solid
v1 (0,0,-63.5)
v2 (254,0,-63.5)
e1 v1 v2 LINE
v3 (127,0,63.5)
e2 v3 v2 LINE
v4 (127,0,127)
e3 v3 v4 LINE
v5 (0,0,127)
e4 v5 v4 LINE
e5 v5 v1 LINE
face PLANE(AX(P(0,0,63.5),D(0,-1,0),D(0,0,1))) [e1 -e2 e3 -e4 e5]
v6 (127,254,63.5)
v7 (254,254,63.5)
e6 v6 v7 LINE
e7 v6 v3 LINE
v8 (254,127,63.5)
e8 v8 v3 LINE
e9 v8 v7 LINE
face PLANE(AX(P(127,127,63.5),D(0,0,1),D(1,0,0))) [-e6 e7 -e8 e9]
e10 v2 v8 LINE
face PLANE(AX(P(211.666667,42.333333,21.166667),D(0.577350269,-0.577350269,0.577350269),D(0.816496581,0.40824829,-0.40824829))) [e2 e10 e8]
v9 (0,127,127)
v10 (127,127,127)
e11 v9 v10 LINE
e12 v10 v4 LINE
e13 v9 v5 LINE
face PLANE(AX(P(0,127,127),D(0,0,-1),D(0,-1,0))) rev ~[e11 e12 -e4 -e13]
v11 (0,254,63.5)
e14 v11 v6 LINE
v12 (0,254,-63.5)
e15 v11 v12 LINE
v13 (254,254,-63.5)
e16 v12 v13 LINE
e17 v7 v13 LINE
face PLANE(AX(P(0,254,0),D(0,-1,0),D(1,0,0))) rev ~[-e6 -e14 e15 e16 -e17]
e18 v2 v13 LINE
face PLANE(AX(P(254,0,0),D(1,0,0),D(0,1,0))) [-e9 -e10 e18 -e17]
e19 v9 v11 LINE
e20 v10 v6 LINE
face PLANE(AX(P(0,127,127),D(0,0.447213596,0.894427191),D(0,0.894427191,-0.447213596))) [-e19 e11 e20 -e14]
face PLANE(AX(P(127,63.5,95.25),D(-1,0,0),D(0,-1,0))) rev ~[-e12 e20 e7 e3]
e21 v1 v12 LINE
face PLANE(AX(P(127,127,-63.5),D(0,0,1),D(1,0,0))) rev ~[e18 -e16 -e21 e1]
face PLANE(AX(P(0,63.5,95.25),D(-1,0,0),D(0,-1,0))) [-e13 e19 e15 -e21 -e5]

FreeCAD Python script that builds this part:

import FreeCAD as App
import Part
import Sketcher
from FreeCAD import Vector
Q = App.Units.Quantity


def add_polygon(sketch, points):
    """Adds a closed chain of lines whose ends are joined by coincident constraints."""
    first, n = sketch.GeometryCount, len(points)
    for a, b in zip(points, points[1:] + points[:1]):
        sketch.addGeometry(Part.LineSegment(App.Vector(*a, 0), App.Vector(*b, 0)), False)
    for i in range(n):
        sketch.addConstraint(Sketcher.Constraint("Coincident", first + i, 2, first + (i + 1) % n, 1))

doc = App.newDocument("Part")
body = doc.addObject("PartDesign::Body", "Body")

# Sketch on XY plane
sketch1 = body.newObject("Sketcher::SketchObject", "Sketch")
sketch1.AttachmentSupport = (doc.getObject("XY_Plane"), [""])
sketch1.MapMode = "FlatFace"
add_polygon(sketch1, [(0, 254), (0, 0), (254, 0), (254, 254)])  # lines 0-3
sketch1.addConstraint([
    Sketcher.Constraint("Vertical", 0),
    Sketcher.Constraint("Horizontal", 1),
    Sketcher.Constraint("Vertical", 2),
    Sketcher.Constraint("Horizontal", 3),
    Sketcher.Constraint("Coincident", 0, 2, -1, 1),
    Sketcher.Constraint("Equal", 3, 0),
    Sketcher.Constraint("DistanceX", 1, 1, 1, 2, Q("10 in")),
])
pad1 = body.newObject("PartDesign::Pad", "Pad")
pad1.Profile = sketch1
pad1.Length = Q("5 in")
pad1.Midplane = True

# Sketch on YZ plane
sketch2 = body.newObject("Sketcher::SketchObject", "Sketch001")
sketch2.AttachmentSupport = (doc.getObject("YZ_Plane"), [""])
sketch2.MapMode = "FlatFace"
add_polygon(sketch2, [(0, 63.5), (0, 127), (127, 127), (254, 63.5)])  # lines 0-3
sketch2.addConstraint([
    Sketcher.Constraint("Vertical", 0),
    Sketcher.Constraint("Horizontal", 1),
    Sketcher.Constraint("Horizontal", 3),
    Sketcher.Constraint("PointOnObject", 0, 2, -2),
    Sketcher.Constraint("DistanceX", 1, 1, 1, 2, Q("5 in")),
    Sketcher.Constraint("DistanceX", 3, 2, 3, 1, Q("10 in")),
    Sketcher.Constraint("DistanceY", 0, 1, 0, 2, Q("2.5 in")),
    Sketcher.Constraint("DistanceY", -1, 1, 0, 2, Q("5 in")),
])
pad2 = body.newObject("PartDesign::Pad", "Pad001")
pad2.Profile = sketch2
pad2.Length = Q("5 in")

# Sketch on an angled plane
sketch3 = body.newObject("Sketcher::SketchObject", "Sketch002")
sketch3.Placement = App.Placement(Vector(63.5, -63.5, 63.5), App.Rotation(Vector(0.816496581, 0.40824829, -0.40824829), Vector(0, 0.707106781, 0.707106781), Vector(0.577350269, -0.577350269, 0.577350269), "ZXY"))
add_polygon(sketch3, [(233.313898, 134.703842), (77.771299, 44.901281), (233.313898, -44.901281)])  # lines 0-2
sketch3.addConstraint([
    Sketcher.Constraint("Vertical", 2),
    Sketcher.Constraint("Equal", 0, 1),
    Sketcher.Constraint("Angle", 0, Q("-150 deg")),
    Sketcher.Constraint("DistanceX", -1, 1, 0, 2, 77.771299),
    Sketcher.Constraint("DistanceX", 0, 2, 1, 2, 155.542599),
    Sketcher.Constraint("DistanceY", -1, 1, 0, 2, 44.901281),
])
pocket1 = body.newObject("PartDesign::Pocket", "Pocket")
pocket1.Profile = sketch3
pocket1.Type = "ThroughAll"
pocket1.Reversed = True

doc.recompute()
